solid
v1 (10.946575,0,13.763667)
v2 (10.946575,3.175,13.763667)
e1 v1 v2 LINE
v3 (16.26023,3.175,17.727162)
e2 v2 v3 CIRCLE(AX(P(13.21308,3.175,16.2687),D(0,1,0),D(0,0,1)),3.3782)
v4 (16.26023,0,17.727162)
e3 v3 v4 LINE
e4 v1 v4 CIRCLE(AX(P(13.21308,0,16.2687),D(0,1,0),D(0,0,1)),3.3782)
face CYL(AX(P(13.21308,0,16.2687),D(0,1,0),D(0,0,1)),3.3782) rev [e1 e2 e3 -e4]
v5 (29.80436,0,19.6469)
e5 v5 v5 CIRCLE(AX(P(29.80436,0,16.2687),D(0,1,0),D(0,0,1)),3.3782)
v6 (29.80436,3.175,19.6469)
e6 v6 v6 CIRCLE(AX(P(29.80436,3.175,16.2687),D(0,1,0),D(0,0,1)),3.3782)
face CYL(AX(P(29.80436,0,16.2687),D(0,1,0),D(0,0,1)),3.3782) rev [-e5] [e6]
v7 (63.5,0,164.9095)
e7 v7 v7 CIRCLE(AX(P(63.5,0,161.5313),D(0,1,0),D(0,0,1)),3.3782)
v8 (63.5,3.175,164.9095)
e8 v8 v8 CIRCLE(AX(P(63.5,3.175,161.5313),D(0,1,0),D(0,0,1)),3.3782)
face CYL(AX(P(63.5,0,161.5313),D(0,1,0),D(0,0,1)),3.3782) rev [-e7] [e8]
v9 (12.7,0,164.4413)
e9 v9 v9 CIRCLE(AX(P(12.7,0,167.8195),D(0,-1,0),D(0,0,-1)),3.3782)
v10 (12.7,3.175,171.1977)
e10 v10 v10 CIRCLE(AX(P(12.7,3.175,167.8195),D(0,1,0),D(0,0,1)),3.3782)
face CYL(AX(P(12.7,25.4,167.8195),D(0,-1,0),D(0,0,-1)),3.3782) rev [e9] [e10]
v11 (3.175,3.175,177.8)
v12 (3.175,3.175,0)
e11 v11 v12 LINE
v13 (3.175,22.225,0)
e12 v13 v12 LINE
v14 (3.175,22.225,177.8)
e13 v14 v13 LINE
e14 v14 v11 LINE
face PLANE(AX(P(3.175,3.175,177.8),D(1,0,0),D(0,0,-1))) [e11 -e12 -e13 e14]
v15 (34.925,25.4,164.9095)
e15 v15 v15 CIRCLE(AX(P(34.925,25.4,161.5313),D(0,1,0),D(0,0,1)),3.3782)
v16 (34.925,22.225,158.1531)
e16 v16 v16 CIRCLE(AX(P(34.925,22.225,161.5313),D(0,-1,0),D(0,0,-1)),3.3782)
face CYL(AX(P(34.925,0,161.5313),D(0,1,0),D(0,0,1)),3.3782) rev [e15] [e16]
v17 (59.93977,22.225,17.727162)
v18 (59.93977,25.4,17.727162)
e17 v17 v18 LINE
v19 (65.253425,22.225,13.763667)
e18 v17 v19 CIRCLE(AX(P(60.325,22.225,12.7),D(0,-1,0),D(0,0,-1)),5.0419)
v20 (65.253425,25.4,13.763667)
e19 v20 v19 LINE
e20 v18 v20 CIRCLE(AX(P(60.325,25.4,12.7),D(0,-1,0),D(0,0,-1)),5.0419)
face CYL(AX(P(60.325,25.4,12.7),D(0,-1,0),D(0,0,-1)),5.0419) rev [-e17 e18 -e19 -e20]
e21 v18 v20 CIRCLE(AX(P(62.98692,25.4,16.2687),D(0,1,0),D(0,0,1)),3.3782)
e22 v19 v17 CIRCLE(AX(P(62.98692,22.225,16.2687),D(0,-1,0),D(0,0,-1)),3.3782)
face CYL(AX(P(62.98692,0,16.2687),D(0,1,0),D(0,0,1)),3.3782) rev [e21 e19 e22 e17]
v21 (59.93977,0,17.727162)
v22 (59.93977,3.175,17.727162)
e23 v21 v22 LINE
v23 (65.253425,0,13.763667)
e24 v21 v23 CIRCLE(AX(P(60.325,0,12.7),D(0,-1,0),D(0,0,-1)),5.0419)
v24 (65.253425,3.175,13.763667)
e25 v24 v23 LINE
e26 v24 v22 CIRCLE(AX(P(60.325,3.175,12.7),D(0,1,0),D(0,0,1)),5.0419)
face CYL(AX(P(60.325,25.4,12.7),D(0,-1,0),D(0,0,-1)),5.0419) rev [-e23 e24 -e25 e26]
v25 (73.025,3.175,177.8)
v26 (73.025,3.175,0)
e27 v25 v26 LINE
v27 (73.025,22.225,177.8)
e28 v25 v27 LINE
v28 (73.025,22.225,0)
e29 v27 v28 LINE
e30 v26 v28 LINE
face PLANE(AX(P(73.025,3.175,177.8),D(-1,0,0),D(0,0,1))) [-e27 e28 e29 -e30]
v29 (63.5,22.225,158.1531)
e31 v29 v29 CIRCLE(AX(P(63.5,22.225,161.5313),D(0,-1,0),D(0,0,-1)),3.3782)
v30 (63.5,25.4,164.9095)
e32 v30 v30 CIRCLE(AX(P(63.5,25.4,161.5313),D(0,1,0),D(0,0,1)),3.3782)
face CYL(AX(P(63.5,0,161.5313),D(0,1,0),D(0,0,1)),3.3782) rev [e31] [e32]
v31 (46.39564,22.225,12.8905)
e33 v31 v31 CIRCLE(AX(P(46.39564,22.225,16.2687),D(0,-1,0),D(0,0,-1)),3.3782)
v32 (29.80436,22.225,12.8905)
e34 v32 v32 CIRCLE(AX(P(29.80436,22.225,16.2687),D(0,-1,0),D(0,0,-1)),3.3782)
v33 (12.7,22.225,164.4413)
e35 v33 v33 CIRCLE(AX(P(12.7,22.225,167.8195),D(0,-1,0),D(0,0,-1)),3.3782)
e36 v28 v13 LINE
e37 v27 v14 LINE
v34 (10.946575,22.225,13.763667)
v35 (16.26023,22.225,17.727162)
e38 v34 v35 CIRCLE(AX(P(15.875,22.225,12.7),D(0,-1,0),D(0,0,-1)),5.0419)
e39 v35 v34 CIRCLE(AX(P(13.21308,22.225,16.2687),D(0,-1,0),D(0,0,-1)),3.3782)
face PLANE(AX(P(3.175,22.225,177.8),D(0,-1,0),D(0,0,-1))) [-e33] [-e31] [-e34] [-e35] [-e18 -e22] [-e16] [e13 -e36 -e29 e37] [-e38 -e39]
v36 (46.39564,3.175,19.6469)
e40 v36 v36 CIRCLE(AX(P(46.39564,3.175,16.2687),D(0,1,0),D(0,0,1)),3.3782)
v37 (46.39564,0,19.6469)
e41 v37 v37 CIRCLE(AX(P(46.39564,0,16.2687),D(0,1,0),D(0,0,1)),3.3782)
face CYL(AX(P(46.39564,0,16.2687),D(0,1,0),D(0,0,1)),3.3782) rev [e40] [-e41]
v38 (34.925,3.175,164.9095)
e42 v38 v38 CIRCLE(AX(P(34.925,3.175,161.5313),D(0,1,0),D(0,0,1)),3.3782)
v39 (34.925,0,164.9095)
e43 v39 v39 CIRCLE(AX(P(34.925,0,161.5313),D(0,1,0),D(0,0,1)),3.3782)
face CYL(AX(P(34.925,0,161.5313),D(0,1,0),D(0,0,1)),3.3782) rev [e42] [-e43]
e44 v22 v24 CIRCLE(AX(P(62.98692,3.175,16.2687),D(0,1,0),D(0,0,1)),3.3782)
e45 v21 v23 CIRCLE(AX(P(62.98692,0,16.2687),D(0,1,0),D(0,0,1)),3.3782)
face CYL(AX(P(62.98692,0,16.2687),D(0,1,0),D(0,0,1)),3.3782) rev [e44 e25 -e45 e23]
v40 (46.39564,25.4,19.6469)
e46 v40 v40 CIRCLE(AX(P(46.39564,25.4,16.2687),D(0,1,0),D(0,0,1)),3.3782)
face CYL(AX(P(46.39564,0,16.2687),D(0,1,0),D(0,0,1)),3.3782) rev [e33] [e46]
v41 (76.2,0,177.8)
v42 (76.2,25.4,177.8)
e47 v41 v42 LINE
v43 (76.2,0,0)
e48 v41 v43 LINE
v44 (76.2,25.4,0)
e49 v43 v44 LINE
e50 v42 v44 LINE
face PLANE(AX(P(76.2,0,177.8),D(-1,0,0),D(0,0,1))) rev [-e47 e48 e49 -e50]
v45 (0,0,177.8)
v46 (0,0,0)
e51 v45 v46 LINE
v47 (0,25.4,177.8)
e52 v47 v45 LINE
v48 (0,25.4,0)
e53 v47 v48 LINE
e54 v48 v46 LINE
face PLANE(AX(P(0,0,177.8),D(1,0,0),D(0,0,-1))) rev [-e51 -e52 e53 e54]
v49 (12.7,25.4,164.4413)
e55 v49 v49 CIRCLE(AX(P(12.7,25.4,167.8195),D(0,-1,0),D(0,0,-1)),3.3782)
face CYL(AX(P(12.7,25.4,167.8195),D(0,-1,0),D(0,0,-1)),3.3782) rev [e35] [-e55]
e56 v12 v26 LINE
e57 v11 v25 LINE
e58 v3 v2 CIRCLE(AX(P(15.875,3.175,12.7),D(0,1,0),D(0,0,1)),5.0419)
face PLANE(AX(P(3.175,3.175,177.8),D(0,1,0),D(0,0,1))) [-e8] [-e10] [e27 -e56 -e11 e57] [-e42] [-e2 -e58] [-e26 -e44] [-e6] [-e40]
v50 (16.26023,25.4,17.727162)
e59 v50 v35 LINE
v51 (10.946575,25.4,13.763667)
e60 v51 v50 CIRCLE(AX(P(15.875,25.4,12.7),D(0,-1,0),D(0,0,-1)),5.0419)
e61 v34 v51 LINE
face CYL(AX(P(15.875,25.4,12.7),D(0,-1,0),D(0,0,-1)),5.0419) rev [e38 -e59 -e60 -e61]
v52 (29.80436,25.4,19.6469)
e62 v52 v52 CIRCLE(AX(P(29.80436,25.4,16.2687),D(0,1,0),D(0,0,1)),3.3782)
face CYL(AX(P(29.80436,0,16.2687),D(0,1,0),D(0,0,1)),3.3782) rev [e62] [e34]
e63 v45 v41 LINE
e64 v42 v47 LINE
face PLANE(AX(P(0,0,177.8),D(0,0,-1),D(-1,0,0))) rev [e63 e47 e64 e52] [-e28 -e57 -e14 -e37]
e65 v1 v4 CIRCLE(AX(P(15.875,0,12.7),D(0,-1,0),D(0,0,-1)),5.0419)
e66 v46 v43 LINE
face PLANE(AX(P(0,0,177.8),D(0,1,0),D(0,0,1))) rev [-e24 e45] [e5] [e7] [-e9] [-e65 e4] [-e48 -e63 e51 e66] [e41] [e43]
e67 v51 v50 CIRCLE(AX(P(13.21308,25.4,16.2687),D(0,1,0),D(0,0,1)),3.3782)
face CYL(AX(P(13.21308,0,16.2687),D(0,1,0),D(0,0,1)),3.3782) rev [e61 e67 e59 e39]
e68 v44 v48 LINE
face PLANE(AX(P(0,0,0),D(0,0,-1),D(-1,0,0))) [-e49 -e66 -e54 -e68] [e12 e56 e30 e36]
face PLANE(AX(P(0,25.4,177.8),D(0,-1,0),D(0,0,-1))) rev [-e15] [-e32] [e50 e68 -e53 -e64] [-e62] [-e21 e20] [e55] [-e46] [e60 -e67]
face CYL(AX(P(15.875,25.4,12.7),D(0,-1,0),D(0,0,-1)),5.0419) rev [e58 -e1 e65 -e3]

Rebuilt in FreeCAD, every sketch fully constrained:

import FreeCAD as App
import Part
import Sketcher
Q = App.Units.Quantity


def add_polygon(sketch, points):
    """Adds a closed chain of lines whose ends are joined by coincident constraints."""
    first, n = sketch.GeometryCount, len(points)
    for a, b in zip(points, points[1:] + points[:1]):
        sketch.addGeometry(Part.LineSegment(App.Vector(*a, 0), App.Vector(*b, 0)), False)
    for i in range(n):
        sketch.addConstraint(Sketcher.Constraint("Coincident", first + i, 2, first + (i + 1) % n, 1))

doc = App.newDocument("Part")
params = doc.addObject("Spreadsheet::Sheet", "Params")
for row, (alias, value) in enumerate([
    ("sketch1_width", "3 in"),
    ("sketch1_height", "1 in"),
    ("sketch1_width2", "2.75 in"),
    ("sketch1_height2", "0.75 in"),
    ("pad1_length", "7 in"),
    ("sketch2_diameter", "0.266 in"),
    ("sketch3_diameter", "0.266 in"),
    ("sketch4_diameter", "0.266 in"),
    ("sketch5_diameter", "0.397 in"),
], start=1):
    params.set(f"A{row}", alias)
    params.set(f"B{row}", "=" + value)
    params.setAlias(f"B{row}", alias)

body = doc.addObject("PartDesign::Body", "Body")

sketch1 = body.newObject("Sketcher::SketchObject", "Sketch")
sketch1.AttachmentSupport = (doc.getObject("XY_Plane"), [""])
sketch1.MapMode = "FlatFace"
add_polygon(sketch1, [(0, 25), (0, 0), (76, 0), (76, 25)])
add_polygon(sketch1, [(73, 3), (3, 3), (3, 22), (73, 22)])
sketch1.addConstraint([
    Sketcher.Constraint("Vertical", 0),
    Sketcher.Constraint("Horizontal", 1),
    Sketcher.Constraint("Vertical", 2),
    Sketcher.Constraint("Horizontal", 3),
    Sketcher.Constraint("Horizontal", 4),
    Sketcher.Constraint("Vertical", 5),
    Sketcher.Constraint("Horizontal", 6),
    Sketcher.Constraint("Vertical", 7),
    Sketcher.Constraint("Coincident", 0, 2, -1, 1),
    Sketcher.Constraint("DistanceX", 1, 1, 1, 2, Q("3 in")),
    Sketcher.Constraint("DistanceY", 0, 2, 0, 1, Q("1 in")),
    Sketcher.Constraint("DistanceX", 4, 2, 4, 1, Q("2.75 in")),
    Sketcher.Constraint("DistanceY", 5, 1, 5, 2, Q("0.75 in")),
    Sketcher.Constraint("DistanceX", -1, 1, 4, 2, Q("0.125 in")),
    Sketcher.Constraint("DistanceY", -1, 1, 4, 2, Q("0.125 in")),
])
sketch1.setExpression("Constraints[17]", "Params.sketch1_width")
sketch1.setExpression("Constraints[18]", "Params.sketch1_height")
sketch1.setExpression("Constraints[19]", "Params.sketch1_width2")
sketch1.setExpression("Constraints[20]", "Params.sketch1_height2")
pad1 = body.newObject("PartDesign::Pad", "Pad")
pad1.Profile = sketch1
pad1.setExpression("Length", "Params.pad1_length")

sketch2 = body.newObject("Sketcher::SketchObject", "Sketch001")
sketch2.AttachmentSupport = (doc.getObject("XZ_Plane"), [""])
sketch2.MapMode = "FlatFace"
sketch2.AttachmentOffset = App.Placement(App.Vector(0, 0, -1 * 25.4), App.Rotation())
sketch2.addGeometry([
    Part.Circle(App.Vector(13.2, 16.3, 0), App.Vector(0, 0, 1), 3.4),
    Part.Circle(App.Vector(29.8, 16.3, 0), App.Vector(0, 0, 1), 3.4),
    Part.Circle(App.Vector(46.4, 16.3, 0), App.Vector(0, 0, 1), 3.4),
    Part.Circle(App.Vector(63, 16.3, 0), App.Vector(0, 0, 1), 3.4),
], False)
sketch2.addConstraint([
    Sketcher.Constraint("Equal", 0, 1),
    Sketcher.Constraint("Equal", 1, 2),
    Sketcher.Constraint("Equal", 2, 3),
    Sketcher.Constraint("Horizontal", 0, 3, 1, 3),
    Sketcher.Constraint("Horizontal", 1, 3, 2, 3),
    Sketcher.Constraint("Horizontal", 2, 3, 3, 3),
    Sketcher.Constraint("Diameter", 0, Q("0.266 in")),
    Sketcher.Constraint("DistanceX", -1, 1, 0, 3, Q("0.5202 in")),
    Sketcher.Constraint("DistanceY", -1, 1, 0, 3, Q("0.6405 in")),
    Sketcher.Constraint("DistanceX", -1, 1, 1, 3, Q("1.1734 in")),
    Sketcher.Constraint("DistanceX", -1, 1, 2, 3, Q("1.8266 in")),
    Sketcher.Constraint("DistanceX", -1, 1, 3, 3, Q("2.4798 in")),
])
sketch2.setExpression("Constraints[6]", "Params.sketch2_diameter")
pocket1 = body.newObject("PartDesign::Pocket", "Pocket")
pocket1.Profile = sketch2
pocket1.Type = "ThroughAll"
pocket1.Reversed = True

sketch3 = body.newObject("Sketcher::SketchObject", "Sketch002")
sketch3.AttachmentSupport = (doc.getObject("XZ_Plane"), [""])
sketch3.MapMode = "FlatFace"
sketch3.addGeometry(Part.Circle(App.Vector(12.7, 167.8, 0), App.Vector(0, 0, 1), 3.4), False)
sketch3.addConstraint([
    Sketcher.Constraint("Diameter", 0, Q("0.266 in")),
    Sketcher.Constraint("DistanceX", -1, 1, 0, 3, Q("0.5 in")),
    Sketcher.Constraint("DistanceY", -1, 1, 0, 3, 167.8195),
])
sketch3.setExpression("Constraints[0]", "Params.sketch3_diameter")
pocket2 = body.newObject("PartDesign::Pocket", "Pocket001")
pocket2.Profile = sketch3
pocket2.Type = "ThroughAll"

sketch4 = body.newObject("Sketcher::SketchObject", "Sketch003")
sketch4.AttachmentSupport = (doc.getObject("XZ_Plane"), [""])
sketch4.MapMode = "FlatFace"
sketch4.AttachmentOffset = App.Placement(App.Vector(0, 0, -1 * 25.4), App.Rotation())
sketch4.addGeometry([
    Part.Circle(App.Vector(63.5, 161.5, 0), App.Vector(0, 0, 1), 3.4),
    Part.Circle(App.Vector(34.9, 161.5, 0), App.Vector(0, 0, 1), 3.4),
], False)
sketch4.addConstraint([
    Sketcher.Constraint("Equal", 0, 1),
    Sketcher.Constraint("Horizontal", 0, 3, 1, 3),
    Sketcher.Constraint("Diameter", 0, Q("0.266 in")),
    Sketcher.Constraint("DistanceX", -1, 1, 0, 3, Q("2.5 in")),
    Sketcher.Constraint("DistanceX", -1, 1, 1, 3, Q("1.375 in")),
    Sketcher.Constraint("DistanceY", -1, 1, 0, 3, Q("6.3595 in")),
])
sketch4.setExpression("Constraints[2]", "Params.sketch4_diameter")
pocket3 = body.newObject("PartDesign::Pocket", "Pocket002")
pocket3.Profile = sketch4
pocket3.Type = "ThroughAll"
pocket3.Reversed = True

sketch5 = body.newObject("Sketcher::SketchObject", "Sketch004")
sketch5.AttachmentSupport = (doc.getObject("XZ_Plane"), [""])
sketch5.MapMode = "FlatFace"
sketch5.addGeometry([
    Part.Circle(App.Vector(16, 13, 0), App.Vector(0, 0, 1), 5),
    Part.Circle(App.Vector(60, 13, 0), App.Vector(0, 0, 1), 5),
], False)
sketch5.addConstraint([
    Sketcher.Constraint("Equal", 0, 1),
    Sketcher.Constraint("Horizontal", 0, 3, 1, 3),
    Sketcher.Constraint("Diameter", 0, Q("0.397 in")),
    Sketcher.Constraint("DistanceY", -1, 1, 0, 3, Q("0.5 in")),
    Sketcher.Constraint("DistanceX", 0, 3, 1, 3, Q("1.75 in")),
    Sketcher.Constraint("DistanceX", -1, 1, 0, 3, Q("0.625 in")),
])
sketch5.setExpression("Constraints[2]", "Params.sketch5_diameter")
pocket4 = body.newObject("PartDesign::Pocket", "Pocket003")
pocket4.Profile = sketch5
pocket4.Type = "ThroughAll"

doc.recompute()
